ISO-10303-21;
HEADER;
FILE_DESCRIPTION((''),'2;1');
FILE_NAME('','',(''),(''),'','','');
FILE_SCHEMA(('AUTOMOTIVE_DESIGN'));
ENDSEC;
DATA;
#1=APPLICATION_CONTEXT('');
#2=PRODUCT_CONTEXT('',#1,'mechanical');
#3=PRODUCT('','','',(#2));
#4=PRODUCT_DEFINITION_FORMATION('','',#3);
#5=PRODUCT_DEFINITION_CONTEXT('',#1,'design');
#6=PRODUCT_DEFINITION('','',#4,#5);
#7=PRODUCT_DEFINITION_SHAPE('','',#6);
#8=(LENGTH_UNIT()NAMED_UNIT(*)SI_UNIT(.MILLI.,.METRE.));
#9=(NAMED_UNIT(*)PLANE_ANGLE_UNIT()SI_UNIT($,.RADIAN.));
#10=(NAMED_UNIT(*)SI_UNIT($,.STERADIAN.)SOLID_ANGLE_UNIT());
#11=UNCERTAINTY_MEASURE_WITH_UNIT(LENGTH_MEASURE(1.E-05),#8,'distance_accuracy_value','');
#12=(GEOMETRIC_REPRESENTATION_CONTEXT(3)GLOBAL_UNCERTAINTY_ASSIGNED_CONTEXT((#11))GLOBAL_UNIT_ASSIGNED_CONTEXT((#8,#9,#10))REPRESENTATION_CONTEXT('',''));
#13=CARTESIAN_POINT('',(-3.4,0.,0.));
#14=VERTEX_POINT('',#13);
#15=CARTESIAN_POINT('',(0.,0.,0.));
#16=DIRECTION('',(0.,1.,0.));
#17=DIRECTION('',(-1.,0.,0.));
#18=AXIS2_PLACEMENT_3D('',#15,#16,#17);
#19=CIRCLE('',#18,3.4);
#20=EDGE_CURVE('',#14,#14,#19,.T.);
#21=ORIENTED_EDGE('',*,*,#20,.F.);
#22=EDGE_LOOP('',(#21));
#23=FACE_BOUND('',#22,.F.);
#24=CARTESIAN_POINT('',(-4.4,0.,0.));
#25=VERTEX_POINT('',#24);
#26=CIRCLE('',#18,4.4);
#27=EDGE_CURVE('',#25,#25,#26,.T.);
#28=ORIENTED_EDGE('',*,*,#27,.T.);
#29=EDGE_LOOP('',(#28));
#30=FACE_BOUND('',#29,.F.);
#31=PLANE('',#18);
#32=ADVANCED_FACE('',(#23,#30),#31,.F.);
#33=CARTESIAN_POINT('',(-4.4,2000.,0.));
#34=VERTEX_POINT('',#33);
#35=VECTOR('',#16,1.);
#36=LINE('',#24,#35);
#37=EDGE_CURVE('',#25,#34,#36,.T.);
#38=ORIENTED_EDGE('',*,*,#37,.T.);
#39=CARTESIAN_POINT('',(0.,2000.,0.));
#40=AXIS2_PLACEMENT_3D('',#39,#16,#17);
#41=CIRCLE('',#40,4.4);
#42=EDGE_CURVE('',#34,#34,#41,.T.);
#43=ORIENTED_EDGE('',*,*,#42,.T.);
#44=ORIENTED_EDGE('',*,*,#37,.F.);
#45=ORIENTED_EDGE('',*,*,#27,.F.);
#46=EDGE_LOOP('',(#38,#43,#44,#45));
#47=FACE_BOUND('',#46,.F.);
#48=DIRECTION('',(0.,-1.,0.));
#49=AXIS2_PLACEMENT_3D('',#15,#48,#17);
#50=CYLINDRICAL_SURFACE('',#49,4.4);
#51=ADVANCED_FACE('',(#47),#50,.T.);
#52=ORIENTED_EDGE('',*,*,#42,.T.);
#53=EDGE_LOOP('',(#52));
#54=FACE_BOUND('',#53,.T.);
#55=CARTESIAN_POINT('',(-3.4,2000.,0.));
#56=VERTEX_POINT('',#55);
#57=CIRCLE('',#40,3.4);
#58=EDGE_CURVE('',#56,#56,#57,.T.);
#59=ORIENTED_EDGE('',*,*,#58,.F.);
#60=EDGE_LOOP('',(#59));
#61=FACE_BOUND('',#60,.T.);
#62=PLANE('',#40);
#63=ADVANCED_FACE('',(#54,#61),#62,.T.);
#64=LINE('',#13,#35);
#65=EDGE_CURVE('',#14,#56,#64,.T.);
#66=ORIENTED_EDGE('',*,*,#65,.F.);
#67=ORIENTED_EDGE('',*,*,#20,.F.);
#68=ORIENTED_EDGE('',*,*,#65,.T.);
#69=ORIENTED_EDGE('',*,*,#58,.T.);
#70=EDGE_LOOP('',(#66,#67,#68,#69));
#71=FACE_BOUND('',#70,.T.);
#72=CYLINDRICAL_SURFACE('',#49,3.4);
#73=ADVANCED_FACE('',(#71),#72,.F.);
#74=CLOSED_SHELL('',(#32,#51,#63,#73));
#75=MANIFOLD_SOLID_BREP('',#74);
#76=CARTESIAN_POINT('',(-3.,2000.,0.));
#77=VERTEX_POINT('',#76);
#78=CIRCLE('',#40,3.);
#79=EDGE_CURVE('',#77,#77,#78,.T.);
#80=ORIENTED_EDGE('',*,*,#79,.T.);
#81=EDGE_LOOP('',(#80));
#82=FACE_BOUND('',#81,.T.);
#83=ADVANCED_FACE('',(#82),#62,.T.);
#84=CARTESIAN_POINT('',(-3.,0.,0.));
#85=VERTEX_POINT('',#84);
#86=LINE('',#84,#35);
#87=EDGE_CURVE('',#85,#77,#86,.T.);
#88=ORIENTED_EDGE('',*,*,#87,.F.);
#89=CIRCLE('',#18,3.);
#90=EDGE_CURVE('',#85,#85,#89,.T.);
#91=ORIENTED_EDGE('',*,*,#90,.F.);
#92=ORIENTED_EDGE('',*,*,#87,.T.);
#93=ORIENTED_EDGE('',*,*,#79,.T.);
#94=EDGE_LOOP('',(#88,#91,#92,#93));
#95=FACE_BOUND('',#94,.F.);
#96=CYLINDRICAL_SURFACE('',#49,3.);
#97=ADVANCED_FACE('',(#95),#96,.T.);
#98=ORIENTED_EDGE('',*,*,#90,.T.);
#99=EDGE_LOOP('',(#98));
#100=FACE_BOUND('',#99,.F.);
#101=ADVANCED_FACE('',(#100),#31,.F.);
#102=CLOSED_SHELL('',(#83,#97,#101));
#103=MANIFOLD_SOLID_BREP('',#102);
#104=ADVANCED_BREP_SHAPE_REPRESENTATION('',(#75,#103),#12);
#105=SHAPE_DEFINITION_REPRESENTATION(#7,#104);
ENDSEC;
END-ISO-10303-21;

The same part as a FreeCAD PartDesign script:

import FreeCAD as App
import Part
import Sketcher

doc = App.newDocument("Part")
body = doc.addObject("PartDesign::Body", "Body")
body.AllowCompound = True

sketch1 = body.newObject("Sketcher::SketchObject", "Sketch")
sketch1.AttachmentSupport = (doc.getObject("XZ_Plane"), [""])
sketch1.MapMode = "FlatFace"
sketch1.addGeometry(Part.Circle(App.Vector(0, 0, 0), App.Vector(0, 0, 1), 3), False)
sketch1.addConstraint([
    Sketcher.Constraint("Coincident", 0, 3, -1, 1),
    Sketcher.Constraint("Diameter", 0, 6.0),
])
pad1 = body.newObject("PartDesign::Pad", "Pad")
pad1.Profile = sketch1
pad1.Length = 2000
pad1.Reversed = True

sketch2 = body.newObject("Sketcher::SketchObject", "Sketch001")
sketch2.AttachmentSupport = (doc.getObject("XZ_Plane"), [""])
sketch2.MapMode = "FlatFace"
sketch2.addGeometry([
    Part.Circle(App.Vector(0, 0, 0), App.Vector(0, 0, 1), 4.4),
    Part.Circle(App.Vector(0, 0, 0), App.Vector(0, 0, 1), 3.4),
], False)
sketch2.addConstraint([
    Sketcher.Constraint("Coincident", 0, 3, -1, 1),
    Sketcher.Constraint("Coincident", 1, 3, -1, 1),
    Sketcher.Constraint("Diameter", 0, 8.8),
    Sketcher.Constraint("Diameter", 1, 6.8),
])
pad2 = body.newObject("PartDesign::Pad", "Pad001")
pad2.Profile = sketch2
pad2.Length = 2000
pad2.Reversed = True

doc.recompute()
